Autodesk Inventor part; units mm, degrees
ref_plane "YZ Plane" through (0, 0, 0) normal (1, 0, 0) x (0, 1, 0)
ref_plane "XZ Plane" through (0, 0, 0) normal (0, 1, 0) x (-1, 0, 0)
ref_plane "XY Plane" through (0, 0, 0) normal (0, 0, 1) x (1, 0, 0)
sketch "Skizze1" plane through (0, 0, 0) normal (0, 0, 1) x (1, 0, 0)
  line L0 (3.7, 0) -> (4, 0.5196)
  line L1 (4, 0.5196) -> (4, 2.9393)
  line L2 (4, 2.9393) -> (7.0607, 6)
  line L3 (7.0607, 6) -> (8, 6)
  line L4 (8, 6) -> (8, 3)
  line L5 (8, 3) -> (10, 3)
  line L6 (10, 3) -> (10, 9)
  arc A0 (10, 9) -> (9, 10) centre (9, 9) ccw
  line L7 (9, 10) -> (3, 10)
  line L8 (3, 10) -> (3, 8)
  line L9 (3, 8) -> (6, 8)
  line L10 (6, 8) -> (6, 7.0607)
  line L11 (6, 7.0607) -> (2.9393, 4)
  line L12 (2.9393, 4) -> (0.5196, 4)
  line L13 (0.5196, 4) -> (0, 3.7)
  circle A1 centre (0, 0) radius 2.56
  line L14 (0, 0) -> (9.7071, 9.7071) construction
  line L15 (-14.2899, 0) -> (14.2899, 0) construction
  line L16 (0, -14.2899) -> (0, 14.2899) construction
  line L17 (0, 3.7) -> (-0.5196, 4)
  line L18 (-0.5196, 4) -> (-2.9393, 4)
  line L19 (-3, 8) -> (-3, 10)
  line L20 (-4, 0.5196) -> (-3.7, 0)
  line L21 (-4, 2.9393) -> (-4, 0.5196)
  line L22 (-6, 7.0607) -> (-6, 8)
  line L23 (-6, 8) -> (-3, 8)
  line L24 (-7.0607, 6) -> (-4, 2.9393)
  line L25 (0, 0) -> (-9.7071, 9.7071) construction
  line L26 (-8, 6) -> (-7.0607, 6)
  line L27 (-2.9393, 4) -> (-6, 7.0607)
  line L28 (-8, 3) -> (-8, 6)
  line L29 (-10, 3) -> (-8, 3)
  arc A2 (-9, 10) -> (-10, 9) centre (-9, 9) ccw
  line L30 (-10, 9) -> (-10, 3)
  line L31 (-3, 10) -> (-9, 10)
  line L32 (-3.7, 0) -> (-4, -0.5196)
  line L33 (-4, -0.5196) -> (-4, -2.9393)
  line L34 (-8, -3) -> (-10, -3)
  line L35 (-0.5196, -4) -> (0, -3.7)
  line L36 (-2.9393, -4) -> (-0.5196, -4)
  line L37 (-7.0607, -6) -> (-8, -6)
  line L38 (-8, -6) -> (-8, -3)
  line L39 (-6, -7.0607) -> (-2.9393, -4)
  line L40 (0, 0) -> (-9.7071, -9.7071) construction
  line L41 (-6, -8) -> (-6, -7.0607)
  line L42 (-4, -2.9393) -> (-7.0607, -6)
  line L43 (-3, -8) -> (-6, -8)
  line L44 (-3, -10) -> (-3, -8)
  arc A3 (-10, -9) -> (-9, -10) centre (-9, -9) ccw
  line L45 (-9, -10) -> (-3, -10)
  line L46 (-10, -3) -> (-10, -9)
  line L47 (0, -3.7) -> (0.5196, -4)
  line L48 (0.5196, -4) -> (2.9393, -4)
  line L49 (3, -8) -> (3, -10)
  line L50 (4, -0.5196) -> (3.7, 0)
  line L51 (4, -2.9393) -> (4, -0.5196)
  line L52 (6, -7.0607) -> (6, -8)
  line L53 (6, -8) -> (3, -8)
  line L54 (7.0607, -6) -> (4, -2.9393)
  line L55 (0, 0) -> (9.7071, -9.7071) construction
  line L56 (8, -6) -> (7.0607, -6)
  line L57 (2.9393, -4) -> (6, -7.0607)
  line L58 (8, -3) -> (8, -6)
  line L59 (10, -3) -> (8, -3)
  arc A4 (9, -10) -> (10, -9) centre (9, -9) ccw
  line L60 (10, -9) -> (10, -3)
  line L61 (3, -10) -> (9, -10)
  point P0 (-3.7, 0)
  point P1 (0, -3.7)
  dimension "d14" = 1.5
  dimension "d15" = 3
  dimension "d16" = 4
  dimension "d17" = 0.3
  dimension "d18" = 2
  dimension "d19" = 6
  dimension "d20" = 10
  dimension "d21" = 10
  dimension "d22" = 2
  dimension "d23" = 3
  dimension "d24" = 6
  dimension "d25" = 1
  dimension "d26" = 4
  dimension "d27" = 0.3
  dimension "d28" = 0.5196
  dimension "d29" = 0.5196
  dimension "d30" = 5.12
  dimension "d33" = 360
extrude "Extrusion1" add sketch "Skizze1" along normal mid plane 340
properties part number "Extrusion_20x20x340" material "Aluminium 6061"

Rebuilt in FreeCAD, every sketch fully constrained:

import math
import FreeCAD as App
import Part
import Sketcher
from FreeCAD import Vector
Q = App.Units.Quantity

doc = App.newDocument("Part")
params = doc.addObject("Spreadsheet::Sheet", "Params")
for row, (alias, value) in enumerate([
    ("sketch1_radius", "1 mm"),
    ("sketch1_diameter", "5.12 mm"),
    ("sketch1_width", "2 mm"),
    ("sketch1_width2", "6 mm"),
    ("sketch1_width3", "3 mm"),
    ("pad1_length", "340 mm"),
], start=1):
    params.set(f"A{row}", alias)
    params.set(f"B{row}", "=" + value)
    params.setAlias(f"B{row}", alias)

body = doc.addObject("PartDesign::Body", "Body")

# Sketch on XY plane
sketch1 = doc.addObject("Sketcher::SketchObject", "Sketch")
body.addObject(sketch1)
sketch1.AttachmentSupport = (doc.XY_Plane, [""])
sketch1.MapMode = "FlatFace"
sketch1.addGeometry([
    Part.LineSegment(Vector(4, -0.5, 0), Vector(3.7, 0, 0)),  # 0
    Part.LineSegment(Vector(3.7, 0, 0), Vector(4, 0.5, 0)),  # 1
    Part.LineSegment(Vector(4, 0.5, 0), Vector(4, 2.9, 0)),  # 2
    Part.LineSegment(Vector(4, 2.9, 0), Vector(7.1, 6, 0)),  # 3
    Part.LineSegment(Vector(7.1, 6, 0), Vector(8, 6, 0)),  # 4
    Part.LineSegment(Vector(8, 6, 0), Vector(8, 3, 0)),  # 5
    Part.LineSegment(Vector(8, 3, 0), Vector(10, 3, 0)),  # 6
    Part.LineSegment(Vector(10, 3, 0), Vector(10, 9, 0)),  # 7
    Part.ArcOfCircle(Part.Circle(Vector(9, 9, 0), Vector(0, 0, 1), 1), math.radians(0), math.radians(90)),  # 8
    Part.LineSegment(Vector(9, 10, 0), Vector(3, 10, 0)),  # 9
    Part.LineSegment(Vector(3, 10, 0), Vector(3, 8, 0)),  # 10
    Part.LineSegment(Vector(3, 8, 0), Vector(6, 8, 0)),  # 11
    Part.LineSegment(Vector(6, 8, 0), Vector(6, 7.1, 0)),  # 12
    Part.LineSegment(Vector(6, 7.1, 0), Vector(2.9, 4, 0)),  # 13
    Part.LineSegment(Vector(2.9, 4, 0), Vector(0.5, 4, 0)),  # 14
    Part.LineSegment(Vector(0.5, 4, 0), Vector(0, 3.7, 0)),  # 15
    Part.LineSegment(Vector(0, 3.7, 0), Vector(-0.5, 4, 0)),  # 16
    Part.LineSegment(Vector(-0.5, 4, 0), Vector(-2.9, 4, 0)),  # 17
    Part.LineSegment(Vector(-2.9, 4, 0), Vector(-6, 7.1, 0)),  # 18
    Part.LineSegment(Vector(-6, 7.1, 0), Vector(-6, 8, 0)),  # 19
    Part.LineSegment(Vector(-6, 8, 0), Vector(-3, 8, 0)),  # 20
    Part.LineSegment(Vector(-3, 8, 0), Vector(-3, 10, 0)),  # 21
    Part.LineSegment(Vector(-3, 10, 0), Vector(-9, 10, 0)),  # 22
    Part.ArcOfCircle(Part.Circle(Vector(-9, 9, 0), Vector(0, 0, 1), 1), math.radians(90), math.radians(180)),  # 23
    Part.LineSegment(Vector(-10, 9, 0), Vector(-10, 3, 0)),  # 24
    Part.LineSegment(Vector(-10, 3, 0), Vector(-8, 3, 0)),  # 25
    Part.LineSegment(Vector(-8, 3, 0), Vector(-8, 6, 0)),  # 26
    Part.LineSegment(Vector(-8, 6, 0), Vector(-7.1, 6, 0)),  # 27
    Part.LineSegment(Vector(-7.1, 6, 0), Vector(-4, 2.9, 0)),  # 28
    Part.LineSegment(Vector(-4, 2.9, 0), Vector(-4, 0.5, 0)),  # 29
    Part.LineSegment(Vector(-4, 0.5, 0), Vector(-3.7, 0, 0)),  # 30
    Part.LineSegment(Vector(-3.7, 0, 0), Vector(-4, -0.5, 0)),  # 31
    Part.LineSegment(Vector(-4, -0.5, 0), Vector(-4, -2.9, 0)),  # 32
    Part.LineSegment(Vector(-4, -2.9, 0), Vector(-7.1, -6, 0)),  # 33
    Part.LineSegment(Vector(-7.1, -6, 0), Vector(-8, -6, 0)),  # 34
    Part.LineSegment(Vector(-8, -6, 0), Vector(-8, -3, 0)),  # 35
    Part.LineSegment(Vector(-8, -3, 0), Vector(-10, -3, 0)),  # 36
    Part.LineSegment(Vector(-10, -3, 0), Vector(-10, -9, 0)),  # 37
    Part.ArcOfCircle(Part.Circle(Vector(-9, -9, 0), Vector(0, 0, 1), 1), math.radians(180), math.radians(270)),  # 38
    Part.LineSegment(Vector(-9, -10, 0), Vector(-3, -10, 0)),  # 39
    Part.LineSegment(Vector(-3, -10, 0), Vector(-3, -8, 0)),  # 40
    Part.LineSegment(Vector(-3, -8, 0), Vector(-6, -8, 0)),  # 41
    Part.LineSegment(Vector(-6, -8, 0), Vector(-6, -7.1, 0)),  # 42
    Part.LineSegment(Vector(-6, -7.1, 0), Vector(-2.9, -4, 0)),  # 43
    Part.LineSegment(Vector(-2.9, -4, 0), Vector(-0.5, -4, 0)),  # 44
    Part.LineSegment(Vector(-0.5, -4, 0), Vector(0, -3.7, 0)),  # 45
    Part.LineSegment(Vector(0, -3.7, 0), Vector(0.5, -4, 0)),  # 46
    Part.LineSegment(Vector(0.5, -4, 0), Vector(2.9, -4, 0)),  # 47
    Part.LineSegment(Vector(2.9, -4, 0), Vector(6, -7.1, 0)),  # 48
    Part.LineSegment(Vector(6, -7.1, 0), Vector(6, -8, 0)),  # 49
    Part.LineSegment(Vector(6, -8, 0), Vector(3, -8, 0)),  # 50
    Part.LineSegment(Vector(3, -8, 0), Vector(3, -10, 0)),  # 51
    Part.LineSegment(Vector(3, -10, 0), Vector(9, -10, 0)),  # 52
    Part.ArcOfCircle(Part.Circle(Vector(9, -9, 0), Vector(0, 0, 1), 1), math.radians(-90), math.radians(0)),  # 53
    Part.LineSegment(Vector(10, -9, 0), Vector(10, -3, 0)),  # 54
    Part.LineSegment(Vector(10, -3, 0), Vector(8, -3, 0)),  # 55
    Part.LineSegment(Vector(8, -3, 0), Vector(8, -6, 0)),  # 56
    Part.LineSegment(Vector(8, -6, 0), Vector(7.1, -6, 0)),  # 57
    Part.LineSegment(Vector(7.1, -6, 0), Vector(4, -2.9, 0)),  # 58
    Part.LineSegment(Vector(4, -2.9, 0), Vector(4, -0.5, 0)),  # 59
    Part.Circle(Vector(0, 0, 0), Vector(0, 0, 1), 2.6),  # 60
], False)
sketch1.addConstraint([
    Sketcher.Constraint("Coincident", 0, 2, 1, 1),
    Sketcher.Constraint("Coincident", 1, 2, 2, 1),
    Sketcher.Constraint("Coincident", 2, 2, 3, 1),
    Sketcher.Constraint("Coincident", 3, 2, 4, 1),
    Sketcher.Constraint("Coincident", 4, 2, 5, 1),
    Sketcher.Constraint("Coincident", 5, 2, 6, 1),
    Sketcher.Constraint("Coincident", 6, 2, 7, 1),
    Sketcher.Constraint("Tangent", 7, 2, 8, 1),
    Sketcher.Constraint("Tangent", 8, 2, 9, 1),
    Sketcher.Constraint("Coincident", 9, 2, 10, 1),
    Sketcher.Constraint("Coincident", 10, 2, 11, 1),
    Sketcher.Constraint("Coincident", 11, 2, 12, 1),
    Sketcher.Constraint("Coincident", 12, 2, 13, 1),
    Sketcher.Constraint("Coincident", 13, 2, 14, 1),
    Sketcher.Constraint("Coincident", 14, 2, 15, 1),
    Sketcher.Constraint("Coincident", 15, 2, 16, 1),
    Sketcher.Constraint("Coincident", 16, 2, 17, 1),
    Sketcher.Constraint("Coincident", 17, 2, 18, 1),
    Sketcher.Constraint("Coincident", 18, 2, 19, 1),
    Sketcher.Constraint("Coincident", 19, 2, 20, 1),
    Sketcher.Constraint("Coincident", 20, 2, 21, 1),
    Sketcher.Constraint("Coincident", 21, 2, 22, 1),
    Sketcher.Constraint("Tangent", 22, 2, 23, 1),
    Sketcher.Constraint("Tangent", 23, 2, 24, 1),
    Sketcher.Constraint("Coincident", 24, 2, 25, 1),
    Sketcher.Constraint("Coincident", 25, 2, 26, 1),
    Sketcher.Constraint("Coincident", 26, 2, 27, 1),
    Sketcher.Constraint("Coincident", 27, 2, 28, 1),
    Sketcher.Constraint("Coincident", 28, 2, 29, 1),
    Sketcher.Constraint("Coincident", 29, 2, 30, 1),
    Sketcher.Constraint("Coincident", 30, 2, 31, 1),
    Sketcher.Constraint("Coincident", 31, 2, 32, 1),
    Sketcher.Constraint("Coincident", 32, 2, 33, 1),
    Sketcher.Constraint("Coincident", 33, 2, 34, 1),
    Sketcher.Constraint("Coincident", 34, 2, 35, 1),
    Sketcher.Constraint("Coincident", 35, 2, 36, 1),
    Sketcher.Constraint("Coincident", 36, 2, 37, 1),
    Sketcher.Constraint("Tangent", 37, 2, 38, 1),
    Sketcher.Constraint("Tangent", 38, 2, 39, 1),
    Sketcher.Constraint("Coincident", 39, 2, 40, 1),
    Sketcher.Constraint("Coincident", 40, 2, 41, 1),
    Sketcher.Constraint("Coincident", 41, 2, 42, 1),
    Sketcher.Constraint("Coincident", 42, 2, 43, 1),
    Sketcher.Constraint("Coincident", 43, 2, 44, 1),
    Sketcher.Constraint("Coincident", 44, 2, 45, 1),
    Sketcher.Constraint("Coincident", 45, 2, 46, 1),
    Sketcher.Constraint("Coincident", 46, 2, 47, 1),
    Sketcher.Constraint("Coincident", 47, 2, 48, 1),
    Sketcher.Constraint("Coincident", 48, 2, 49, 1),
    Sketcher.Constraint("Coincident", 49, 2, 50, 1),
    Sketcher.Constraint("Coincident", 50, 2, 51, 1),
    Sketcher.Constraint("Coincident", 51, 2, 52, 1),
    Sketcher.Constraint("Tangent", 52, 2, 53, 1),
    Sketcher.Constraint("Tangent", 53, 2, 54, 1),
    Sketcher.Constraint("Coincident", 54, 2, 55, 1),
    Sketcher.Constraint("Coincident", 55, 2, 56, 1),
    Sketcher.Constraint("Coincident", 56, 2, 57, 1),
    Sketcher.Constraint("Coincident", 57, 2, 58, 1),
    Sketcher.Constraint("Coincident", 58, 2, 59, 1),
    Sketcher.Constraint("Coincident", 59, 2, 0, 1),
    Sketcher.Constraint("Vertical", 2),
    Sketcher.Constraint("Horizontal", 4),
    Sketcher.Constraint("Vertical", 5),
    Sketcher.Constraint("Horizontal", 6),
    Sketcher.Constraint("Vertical", 7),
    Sketcher.Constraint("Horizontal", 9),
    Sketcher.Constraint("Vertical", 10),
    Sketcher.Constraint("Horizontal", 11),
    Sketcher.Constraint("Vertical", 12),
    Sketcher.Constraint("Horizontal", 14),
    Sketcher.Constraint("Horizontal", 17),
    Sketcher.Constraint("Vertical", 19),
    Sketcher.Constraint("Horizontal", 20),
    Sketcher.Constraint("Vertical", 21),
    Sketcher.Constraint("Horizontal", 22),
    Sketcher.Constraint("Vertical", 24),
    Sketcher.Constraint("Horizontal", 25),
    Sketcher.Constraint("Vertical", 26),
    Sketcher.Constraint("Horizontal", 27),
    Sketcher.Constraint("Vertical", 29),
    Sketcher.Constraint("Vertical", 32),
    Sketcher.Constraint("Horizontal", 34),
    Sketcher.Constraint("Vertical", 35),
    Sketcher.Constraint("Horizontal", 36),
    Sketcher.Constraint("Vertical", 37),
    Sketcher.Constraint("Horizontal", 39),
    Sketcher.Constraint("Vertical", 40),
    Sketcher.Constraint("Horizontal", 41),
    Sketcher.Constraint("Vertical", 42),
    Sketcher.Constraint("Horizontal", 44),
    Sketcher.Constraint("Horizontal", 47),
    Sketcher.Constraint("Vertical", 49),
    Sketcher.Constraint("Horizontal", 50),
    Sketcher.Constraint("Vertical", 51),
    Sketcher.Constraint("Horizontal", 52),
    Sketcher.Constraint("Vertical", 54),
    Sketcher.Constraint("Horizontal", 55),
    Sketcher.Constraint("Vertical", 56),
    Sketcher.Constraint("Horizontal", 57),
    Sketcher.Constraint("Vertical", 59),
    Sketcher.Constraint("Coincident", 60, 3, -1, 1),
    Sketcher.Constraint("Equal", 8, 23),
    Sketcher.Constraint("Equal", 23, 38),
    Sketcher.Constraint("Equal", 38, 53),
    Sketcher.Constraint("Symmetric", 8, 3, 38, 3, -1, 1),
    Sketcher.Constraint("Symmetric", 23, 3, 53, 3, -1, 1),
    Sketcher.Constraint("Symmetric", 0, 2, 30, 2, -1, 1),
    Sketcher.Constraint("Symmetric", 1, 2, 31, 2, -1, 1),
    Sketcher.Constraint("Symmetric", 3, 2, 33, 2, -1, 1),
    Sketcher.Constraint("Symmetric", 5, 2, 35, 2, -1, 1),
    Sketcher.Constraint("Symmetric", 10, 2, 40, 2, -1, 1),
    Sketcher.Constraint("Symmetric", 12, 2, 42, 2, -1, 1),
    Sketcher.Constraint("Symmetric", 13, 2, 43, 2, -1, 1),
    Sketcher.Constraint("Symmetric", 15, 2, 45, 2, -1, 1),
    Sketcher.Constraint("Symmetric", 16, 2, 46, 2, -1, 1),
    Sketcher.Constraint("Symmetric", 18, 2, 48, 2, -1, 1),
    Sketcher.Constraint("Symmetric", 20, 2, 50, 2, -1, 1),
    Sketcher.Constraint("Symmetric", 25, 2, 55, 2, -1, 1),
    Sketcher.Constraint("Symmetric", 27, 2, 57, 2, -1, 1),
    Sketcher.Constraint("Symmetric", 28, 2, 58, 2, -1, 1),
    Sketcher.Constraint("Symmetric", 8, 3, 23, 3, -2),
    Sketcher.Constraint("Symmetric", 14, 2, 16, 2, -2),
    Sketcher.Constraint("Symmetric", 12, 2, 18, 2, -2),
    Sketcher.Constraint("Symmetric", 10, 2, 20, 2, -2),
    Sketcher.Constraint("Symmetric", 5, 2, 25, 2, -2),
    Sketcher.Constraint("Symmetric", 3, 2, 27, 2, -2),
    Sketcher.Constraint("Symmetric", 2, 2, 28, 2, -2),
    Sketcher.Constraint("PointOnObject", 0, 2, -1),
    Sketcher.Constraint("PointOnObject", 15, 2, -2),
    Sketcher.Constraint("Parallel", 3, 13),
    Sketcher.Constraint("Perpendicular", 0, 15),
    Sketcher.Constraint("Perpendicular", 1, 16),
    Sketcher.Constraint("Perpendicular", 13, 18),
    Sketcher.Constraint("Parallel", 18, 28),
    Sketcher.Constraint("Perpendicular", 15, 30),
    Sketcher.Constraint("Perpendicular", 28, 33),
    Sketcher.Constraint("Perpendicular", 30, 45),
    Sketcher.Constraint("Perpendicular", 43, 48),
    Sketcher.Constraint("Equal", 47, 2),
    Sketcher.Constraint("Equal", 50, 5),
    Sketcher.Constraint("Equal", 52, 7),
    Sketcher.Constraint("Equal", 55, 10),
    Sketcher.Constraint("Equal", 57, 12),
    Sketcher.Constraint("Equal", 3, 13),
    Sketcher.Constraint("Equal", 1, 15),
    Sketcher.Constraint("Radius", 8, Q("1 mm")),
    Sketcher.Constraint("Diameter", 60, Q("5.12 mm")),
    Sketcher.Constraint("DistanceX", 6, 1, 6, 2, Q("2 mm")),
    Sketcher.Constraint("DistanceX", 9, 2, 9, 1, Q("6 mm")),
    Sketcher.Constraint("DistanceX", 11, 1, 11, 2, Q("3 mm")),
    Sketcher.Constraint("DistanceX", -1, 1, 1, 2, Q("4 mm")),
    Sketcher.Constraint("DistanceY", -1, 1, 3, 2, Q("6 mm")),
    Sketcher.Constraint("Angle", 0, Q("120.0007 deg")),
    Sketcher.Constraint("Distance", 0, Q("0.6 mm")),
    Sketcher.Constraint("DistanceX", 4, 1, 4, 2, Q("0.9393 mm")),
])
sketch1.setExpression("Constraints[145]", "Params.sketch1_radius")
sketch1.setExpression("Constraints[146]", "Params.sketch1_diameter")
sketch1.setExpression("Constraints[147]", "Params.sketch1_width")
sketch1.setExpression("Constraints[148]", "Params.sketch1_width2")
sketch1.setExpression("Constraints[149]", "Params.sketch1_width3")
pad1 = doc.addObject("PartDesign::Pad", "Pad")
body.addObject(pad1)
pad1.Profile = sketch1
pad1.setExpression("Length", "Params.pad1_length")
pad1.Midplane = True

doc.recompute()
